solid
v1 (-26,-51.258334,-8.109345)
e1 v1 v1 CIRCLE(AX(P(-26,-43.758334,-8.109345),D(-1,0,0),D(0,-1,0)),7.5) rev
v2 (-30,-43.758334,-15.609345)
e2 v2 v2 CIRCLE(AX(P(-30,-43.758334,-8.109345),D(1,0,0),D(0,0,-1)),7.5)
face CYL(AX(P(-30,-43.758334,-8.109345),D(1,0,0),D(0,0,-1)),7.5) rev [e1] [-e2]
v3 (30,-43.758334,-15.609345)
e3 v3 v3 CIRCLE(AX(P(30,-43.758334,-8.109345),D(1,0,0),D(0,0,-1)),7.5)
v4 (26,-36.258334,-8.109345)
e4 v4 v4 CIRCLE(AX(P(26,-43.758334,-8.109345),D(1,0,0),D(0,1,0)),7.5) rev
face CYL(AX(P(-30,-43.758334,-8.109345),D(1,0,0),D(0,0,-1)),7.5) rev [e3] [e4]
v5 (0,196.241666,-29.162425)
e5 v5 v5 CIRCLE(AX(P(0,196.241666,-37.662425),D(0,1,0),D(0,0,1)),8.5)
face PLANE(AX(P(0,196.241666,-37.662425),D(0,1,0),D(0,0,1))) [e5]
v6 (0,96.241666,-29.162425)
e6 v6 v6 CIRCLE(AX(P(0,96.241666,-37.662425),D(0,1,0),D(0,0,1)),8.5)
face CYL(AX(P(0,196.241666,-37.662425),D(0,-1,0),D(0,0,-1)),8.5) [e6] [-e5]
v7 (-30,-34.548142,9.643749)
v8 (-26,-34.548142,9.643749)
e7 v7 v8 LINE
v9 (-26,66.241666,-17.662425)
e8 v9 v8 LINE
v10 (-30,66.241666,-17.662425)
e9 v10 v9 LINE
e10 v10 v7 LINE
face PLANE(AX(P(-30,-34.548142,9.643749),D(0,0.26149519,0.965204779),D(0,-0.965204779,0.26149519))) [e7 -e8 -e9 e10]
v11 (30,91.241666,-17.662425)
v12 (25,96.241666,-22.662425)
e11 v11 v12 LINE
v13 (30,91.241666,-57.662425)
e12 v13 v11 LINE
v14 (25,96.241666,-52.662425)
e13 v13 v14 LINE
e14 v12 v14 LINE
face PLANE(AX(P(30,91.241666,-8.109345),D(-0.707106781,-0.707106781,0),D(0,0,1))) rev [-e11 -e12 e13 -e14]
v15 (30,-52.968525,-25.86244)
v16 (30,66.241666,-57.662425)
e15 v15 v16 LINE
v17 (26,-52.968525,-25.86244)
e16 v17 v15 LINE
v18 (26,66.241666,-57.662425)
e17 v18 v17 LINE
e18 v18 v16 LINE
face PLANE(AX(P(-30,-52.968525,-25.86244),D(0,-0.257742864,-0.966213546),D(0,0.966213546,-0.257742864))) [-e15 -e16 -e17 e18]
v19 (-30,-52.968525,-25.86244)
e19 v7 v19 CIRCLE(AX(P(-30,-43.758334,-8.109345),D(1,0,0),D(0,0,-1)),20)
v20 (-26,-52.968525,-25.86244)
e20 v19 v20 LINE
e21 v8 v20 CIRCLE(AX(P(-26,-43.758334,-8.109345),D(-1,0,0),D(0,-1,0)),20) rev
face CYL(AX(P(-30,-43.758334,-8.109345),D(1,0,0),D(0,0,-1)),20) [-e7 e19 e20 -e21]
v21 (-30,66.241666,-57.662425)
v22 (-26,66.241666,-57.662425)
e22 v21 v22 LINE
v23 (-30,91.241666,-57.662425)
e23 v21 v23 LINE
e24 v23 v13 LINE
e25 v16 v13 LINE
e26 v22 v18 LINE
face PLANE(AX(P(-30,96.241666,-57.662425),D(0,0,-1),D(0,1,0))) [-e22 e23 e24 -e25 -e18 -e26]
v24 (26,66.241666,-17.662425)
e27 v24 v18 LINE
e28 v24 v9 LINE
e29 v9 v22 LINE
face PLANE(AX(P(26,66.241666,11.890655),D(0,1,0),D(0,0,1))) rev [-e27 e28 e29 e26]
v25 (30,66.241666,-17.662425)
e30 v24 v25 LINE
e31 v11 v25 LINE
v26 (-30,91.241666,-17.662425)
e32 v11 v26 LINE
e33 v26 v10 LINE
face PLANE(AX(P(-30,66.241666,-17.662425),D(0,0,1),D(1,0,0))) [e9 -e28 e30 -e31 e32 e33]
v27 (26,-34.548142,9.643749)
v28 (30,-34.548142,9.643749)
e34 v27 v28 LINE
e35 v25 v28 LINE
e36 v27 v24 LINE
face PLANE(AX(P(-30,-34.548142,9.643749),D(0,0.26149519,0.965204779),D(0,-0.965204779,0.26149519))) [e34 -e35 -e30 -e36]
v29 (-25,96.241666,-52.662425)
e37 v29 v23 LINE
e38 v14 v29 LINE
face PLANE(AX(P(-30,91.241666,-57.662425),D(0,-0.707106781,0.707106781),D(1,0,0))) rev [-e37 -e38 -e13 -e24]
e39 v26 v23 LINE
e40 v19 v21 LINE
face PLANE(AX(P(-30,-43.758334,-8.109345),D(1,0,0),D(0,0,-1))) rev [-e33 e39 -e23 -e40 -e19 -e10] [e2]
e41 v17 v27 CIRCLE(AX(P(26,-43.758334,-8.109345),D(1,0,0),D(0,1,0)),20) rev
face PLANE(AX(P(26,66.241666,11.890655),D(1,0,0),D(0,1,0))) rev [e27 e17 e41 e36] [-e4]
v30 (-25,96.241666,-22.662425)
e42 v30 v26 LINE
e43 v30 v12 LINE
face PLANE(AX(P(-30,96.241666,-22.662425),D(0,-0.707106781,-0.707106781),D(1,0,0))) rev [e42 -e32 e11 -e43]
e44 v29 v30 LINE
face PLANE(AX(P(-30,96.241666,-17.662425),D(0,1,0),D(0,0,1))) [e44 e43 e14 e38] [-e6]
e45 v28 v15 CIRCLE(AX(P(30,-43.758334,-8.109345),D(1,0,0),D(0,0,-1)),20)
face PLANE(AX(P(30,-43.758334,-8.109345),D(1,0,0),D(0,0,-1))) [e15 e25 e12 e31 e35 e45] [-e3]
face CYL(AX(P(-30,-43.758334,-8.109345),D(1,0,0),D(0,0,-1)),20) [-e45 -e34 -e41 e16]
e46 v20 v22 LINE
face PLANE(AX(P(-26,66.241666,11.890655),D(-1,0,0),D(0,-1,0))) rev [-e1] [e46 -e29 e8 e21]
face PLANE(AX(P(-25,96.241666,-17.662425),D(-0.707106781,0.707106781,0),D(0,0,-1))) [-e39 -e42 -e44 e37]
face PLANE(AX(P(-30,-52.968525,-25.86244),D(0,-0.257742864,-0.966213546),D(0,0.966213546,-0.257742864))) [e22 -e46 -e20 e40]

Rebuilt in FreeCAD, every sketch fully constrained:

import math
import FreeCAD as App
import Part
import Sketcher
from FreeCAD import Vector


def edges_at(feature, points):
    """Names of the edges that pass closest to the given points."""
    edges = feature.Shape.Edges
    near = lambda p: min(range(len(edges)), key=lambda i: edges[i].distToShape(Part.Vertex(*p))[0])
    return sorted({f"Edge{near(p) + 1}" for p in points})


def add_polygon(sketch, points):
    """Adds a closed chain of lines whose ends are joined by coincident constraints."""
    first, n = sketch.GeometryCount, len(points)
    for a, b in zip(points, points[1:] + points[:1]):
        sketch.addGeometry(Part.LineSegment(App.Vector(*a, 0), App.Vector(*b, 0)), False)
    for i in range(n):
        sketch.addConstraint(Sketcher.Constraint("Coincident", first + i, 2, first + (i + 1) % n, 1))

doc = App.newDocument("Part")
body = doc.addObject("PartDesign::Body", "Body")

sketch1 = doc.addObject("Sketcher::SketchObject", "Sketch")
body.addObject(sketch1)
sketch1.AttachmentSupport = (doc.YZ_Plane, [""])
sketch1.MapMode = "FlatFace"
sketch1.addGeometry(Part.LineSegment(Vector(96, -18, 0), Vector(66, -18, 0)), False)
sketch1.addGeometry(Part.LineSegment(Vector(66, -18, 0), Vector(-35, 10, 0)), False)
sketch1.addGeometry(Part.ArcOfCircle(Part.Circle(Vector(-44, -8, 0), Vector(0, 0, 1), 20), math.radians(63), math.radians(243)), False)
sketch1.addGeometry(Part.LineSegment(Vector(-53, -26, 0), Vector(66, -58, 0)), False)
sketch1.addGeometry(Part.LineSegment(Vector(66, -58, 0), Vector(96, -58, 0)), False)
sketch1.addGeometry(Part.LineSegment(Vector(96, -58, 0), Vector(96, -18, 0)), False)
sketch1.addGeometry(Part.Circle(Vector(-44, -8, 0), Vector(0, 0, 1), 8), False)
sketch1.addConstraint(Sketcher.Constraint("Coincident", 0, 2, 1, 1))
sketch1.addConstraint(Sketcher.Constraint("Coincident", 1, 2, 2, 1))
sketch1.addConstraint(Sketcher.Constraint("Coincident", 2, 2, 3, 1))
sketch1.addConstraint(Sketcher.Constraint("Coincident", 3, 2, 4, 1))
sketch1.addConstraint(Sketcher.Constraint("Coincident", 4, 2, 5, 1))
sketch1.addConstraint(Sketcher.Constraint("Coincident", 5, 2, 0, 1))
sketch1.addConstraint(Sketcher.Constraint("Horizontal", 0))
sketch1.addConstraint(Sketcher.Constraint("Horizontal", 4))
sketch1.addConstraint(Sketcher.Constraint("Vertical", 5))
sketch1.addConstraint(Sketcher.Constraint("Coincident", 6, 3, 2, 3))
sketch1.addConstraint(Sketcher.Constraint("Vertical", 0, 2, 3, 2))
sketch1.addConstraint(Sketcher.Constraint("Diameter", 6, 15.0))
sketch1.addConstraint(Sketcher.Constraint("Radius", 2, 20.0))
sketch1.addConstraint(Sketcher.Constraint("DistanceX", 0, 2, 0, 1, 30.0))
sketch1.addConstraint(Sketcher.Constraint("DistanceY", 5, 1, 5, 2, 40.0))
sketch1.addConstraint(Sketcher.Constraint("DistanceX", 2, 3, 0, 2, 110.0))
sketch1.addConstraint(Sketcher.Constraint("Distance", 1, 104.423238))
sketch1.addConstraint(Sketcher.Constraint("Distance", 3, 123.378721))
sketch1.addConstraint(Sketcher.Constraint("DistanceY", -1, 1, 1, 2, 9.643749))
sketch1.addConstraint(Sketcher.Constraint("DistanceY", 0, 2, 2, 3, 9.55308))
sketch1.addConstraint(Sketcher.Constraint("DistanceX", 2, 3, -1, 1, 43.758334))
pad1 = doc.addObject("PartDesign::Pad", "Pad")
body.addObject(pad1)
pad1.Profile = sketch1
pad1.Type = "TwoLengths"
pad1.Length = 30
pad1.Length2 = 30

sketch2 = doc.addObject("Sketcher::SketchObject", "Sketch001")
body.addObject(sketch2)
sketch2.AttachmentSupport = (doc.XY_Plane, [""])
sketch2.MapMode = "FlatFace"
sketch2.AttachmentOffset = App.Placement(Vector(0, 0, -57.662425), App.Rotation())
add_polygon(sketch2, [(26, 66), (26, -77), (-26, -77), (-26, 66)])
sketch2.addConstraint(Sketcher.Constraint("Vertical", 0))
sketch2.addConstraint(Sketcher.Constraint("Horizontal", 1))
sketch2.addConstraint(Sketcher.Constraint("Vertical", 2))
sketch2.addConstraint(Sketcher.Constraint("Horizontal", 3))
sketch2.addConstraint(Sketcher.Constraint("DistanceX", 1, 2, 1, 1, 52.0))
sketch2.addConstraint(Sketcher.Constraint("DistanceX", -1, 1, 0, 2, 26.0))
sketch2.addConstraint(Sketcher.Constraint("DistanceY", 0, 2, 0, 1, 143.28503))
sketch2.addConstraint(Sketcher.Constraint("DistanceY", 0, 2, -1, 1, 77.043364))
pocket1 = doc.addObject("PartDesign::Pocket", "Pocket")
body.addObject(pocket1)
pocket1.Profile = sketch2
pocket1.Type = "ThroughAll"
pocket1.Reversed = True
doc.recompute()

chamfer = doc.addObject("PartDesign::Chamfer", "Chamfer")
body.addObject(chamfer)
chamfer.Base = (pocket1, edges_at(pocket1, [
    (0, 96.242, -17.662),
    (0, 96.242, -57.662),
    (-30, 96.242, -37.662),
    (30, 96.242, -37.662),
]))
chamfer.Size = 5

sketch3 = doc.addObject("Sketcher::SketchObject", "Sketch002")
body.addObject(sketch3)
sketch3.AttachmentSupport = (doc.XZ_Plane, [""])
sketch3.MapMode = "FlatFace"
sketch3.AttachmentOffset = App.Placement(Vector(0, 0, -96.241666), App.Rotation())
sketch3.addGeometry(Part.Circle(Vector(0, -38, 0), Vector(0, 0, 1), 8), False)
sketch3.addConstraint(Sketcher.Constraint("PointOnObject", 0, 3, -2))
sketch3.addConstraint(Sketcher.Constraint("Diameter", 0, 17.0))
sketch3.addConstraint(Sketcher.Constraint("DistanceY", 0, 3, -1, 1, 37.662425))
pad2 = doc.addObject("PartDesign::Pad", "Pad001")
body.addObject(pad2)
pad2.Profile = sketch3
pad2.Length = 100
pad2.Reversed = True

doc.recompute()
